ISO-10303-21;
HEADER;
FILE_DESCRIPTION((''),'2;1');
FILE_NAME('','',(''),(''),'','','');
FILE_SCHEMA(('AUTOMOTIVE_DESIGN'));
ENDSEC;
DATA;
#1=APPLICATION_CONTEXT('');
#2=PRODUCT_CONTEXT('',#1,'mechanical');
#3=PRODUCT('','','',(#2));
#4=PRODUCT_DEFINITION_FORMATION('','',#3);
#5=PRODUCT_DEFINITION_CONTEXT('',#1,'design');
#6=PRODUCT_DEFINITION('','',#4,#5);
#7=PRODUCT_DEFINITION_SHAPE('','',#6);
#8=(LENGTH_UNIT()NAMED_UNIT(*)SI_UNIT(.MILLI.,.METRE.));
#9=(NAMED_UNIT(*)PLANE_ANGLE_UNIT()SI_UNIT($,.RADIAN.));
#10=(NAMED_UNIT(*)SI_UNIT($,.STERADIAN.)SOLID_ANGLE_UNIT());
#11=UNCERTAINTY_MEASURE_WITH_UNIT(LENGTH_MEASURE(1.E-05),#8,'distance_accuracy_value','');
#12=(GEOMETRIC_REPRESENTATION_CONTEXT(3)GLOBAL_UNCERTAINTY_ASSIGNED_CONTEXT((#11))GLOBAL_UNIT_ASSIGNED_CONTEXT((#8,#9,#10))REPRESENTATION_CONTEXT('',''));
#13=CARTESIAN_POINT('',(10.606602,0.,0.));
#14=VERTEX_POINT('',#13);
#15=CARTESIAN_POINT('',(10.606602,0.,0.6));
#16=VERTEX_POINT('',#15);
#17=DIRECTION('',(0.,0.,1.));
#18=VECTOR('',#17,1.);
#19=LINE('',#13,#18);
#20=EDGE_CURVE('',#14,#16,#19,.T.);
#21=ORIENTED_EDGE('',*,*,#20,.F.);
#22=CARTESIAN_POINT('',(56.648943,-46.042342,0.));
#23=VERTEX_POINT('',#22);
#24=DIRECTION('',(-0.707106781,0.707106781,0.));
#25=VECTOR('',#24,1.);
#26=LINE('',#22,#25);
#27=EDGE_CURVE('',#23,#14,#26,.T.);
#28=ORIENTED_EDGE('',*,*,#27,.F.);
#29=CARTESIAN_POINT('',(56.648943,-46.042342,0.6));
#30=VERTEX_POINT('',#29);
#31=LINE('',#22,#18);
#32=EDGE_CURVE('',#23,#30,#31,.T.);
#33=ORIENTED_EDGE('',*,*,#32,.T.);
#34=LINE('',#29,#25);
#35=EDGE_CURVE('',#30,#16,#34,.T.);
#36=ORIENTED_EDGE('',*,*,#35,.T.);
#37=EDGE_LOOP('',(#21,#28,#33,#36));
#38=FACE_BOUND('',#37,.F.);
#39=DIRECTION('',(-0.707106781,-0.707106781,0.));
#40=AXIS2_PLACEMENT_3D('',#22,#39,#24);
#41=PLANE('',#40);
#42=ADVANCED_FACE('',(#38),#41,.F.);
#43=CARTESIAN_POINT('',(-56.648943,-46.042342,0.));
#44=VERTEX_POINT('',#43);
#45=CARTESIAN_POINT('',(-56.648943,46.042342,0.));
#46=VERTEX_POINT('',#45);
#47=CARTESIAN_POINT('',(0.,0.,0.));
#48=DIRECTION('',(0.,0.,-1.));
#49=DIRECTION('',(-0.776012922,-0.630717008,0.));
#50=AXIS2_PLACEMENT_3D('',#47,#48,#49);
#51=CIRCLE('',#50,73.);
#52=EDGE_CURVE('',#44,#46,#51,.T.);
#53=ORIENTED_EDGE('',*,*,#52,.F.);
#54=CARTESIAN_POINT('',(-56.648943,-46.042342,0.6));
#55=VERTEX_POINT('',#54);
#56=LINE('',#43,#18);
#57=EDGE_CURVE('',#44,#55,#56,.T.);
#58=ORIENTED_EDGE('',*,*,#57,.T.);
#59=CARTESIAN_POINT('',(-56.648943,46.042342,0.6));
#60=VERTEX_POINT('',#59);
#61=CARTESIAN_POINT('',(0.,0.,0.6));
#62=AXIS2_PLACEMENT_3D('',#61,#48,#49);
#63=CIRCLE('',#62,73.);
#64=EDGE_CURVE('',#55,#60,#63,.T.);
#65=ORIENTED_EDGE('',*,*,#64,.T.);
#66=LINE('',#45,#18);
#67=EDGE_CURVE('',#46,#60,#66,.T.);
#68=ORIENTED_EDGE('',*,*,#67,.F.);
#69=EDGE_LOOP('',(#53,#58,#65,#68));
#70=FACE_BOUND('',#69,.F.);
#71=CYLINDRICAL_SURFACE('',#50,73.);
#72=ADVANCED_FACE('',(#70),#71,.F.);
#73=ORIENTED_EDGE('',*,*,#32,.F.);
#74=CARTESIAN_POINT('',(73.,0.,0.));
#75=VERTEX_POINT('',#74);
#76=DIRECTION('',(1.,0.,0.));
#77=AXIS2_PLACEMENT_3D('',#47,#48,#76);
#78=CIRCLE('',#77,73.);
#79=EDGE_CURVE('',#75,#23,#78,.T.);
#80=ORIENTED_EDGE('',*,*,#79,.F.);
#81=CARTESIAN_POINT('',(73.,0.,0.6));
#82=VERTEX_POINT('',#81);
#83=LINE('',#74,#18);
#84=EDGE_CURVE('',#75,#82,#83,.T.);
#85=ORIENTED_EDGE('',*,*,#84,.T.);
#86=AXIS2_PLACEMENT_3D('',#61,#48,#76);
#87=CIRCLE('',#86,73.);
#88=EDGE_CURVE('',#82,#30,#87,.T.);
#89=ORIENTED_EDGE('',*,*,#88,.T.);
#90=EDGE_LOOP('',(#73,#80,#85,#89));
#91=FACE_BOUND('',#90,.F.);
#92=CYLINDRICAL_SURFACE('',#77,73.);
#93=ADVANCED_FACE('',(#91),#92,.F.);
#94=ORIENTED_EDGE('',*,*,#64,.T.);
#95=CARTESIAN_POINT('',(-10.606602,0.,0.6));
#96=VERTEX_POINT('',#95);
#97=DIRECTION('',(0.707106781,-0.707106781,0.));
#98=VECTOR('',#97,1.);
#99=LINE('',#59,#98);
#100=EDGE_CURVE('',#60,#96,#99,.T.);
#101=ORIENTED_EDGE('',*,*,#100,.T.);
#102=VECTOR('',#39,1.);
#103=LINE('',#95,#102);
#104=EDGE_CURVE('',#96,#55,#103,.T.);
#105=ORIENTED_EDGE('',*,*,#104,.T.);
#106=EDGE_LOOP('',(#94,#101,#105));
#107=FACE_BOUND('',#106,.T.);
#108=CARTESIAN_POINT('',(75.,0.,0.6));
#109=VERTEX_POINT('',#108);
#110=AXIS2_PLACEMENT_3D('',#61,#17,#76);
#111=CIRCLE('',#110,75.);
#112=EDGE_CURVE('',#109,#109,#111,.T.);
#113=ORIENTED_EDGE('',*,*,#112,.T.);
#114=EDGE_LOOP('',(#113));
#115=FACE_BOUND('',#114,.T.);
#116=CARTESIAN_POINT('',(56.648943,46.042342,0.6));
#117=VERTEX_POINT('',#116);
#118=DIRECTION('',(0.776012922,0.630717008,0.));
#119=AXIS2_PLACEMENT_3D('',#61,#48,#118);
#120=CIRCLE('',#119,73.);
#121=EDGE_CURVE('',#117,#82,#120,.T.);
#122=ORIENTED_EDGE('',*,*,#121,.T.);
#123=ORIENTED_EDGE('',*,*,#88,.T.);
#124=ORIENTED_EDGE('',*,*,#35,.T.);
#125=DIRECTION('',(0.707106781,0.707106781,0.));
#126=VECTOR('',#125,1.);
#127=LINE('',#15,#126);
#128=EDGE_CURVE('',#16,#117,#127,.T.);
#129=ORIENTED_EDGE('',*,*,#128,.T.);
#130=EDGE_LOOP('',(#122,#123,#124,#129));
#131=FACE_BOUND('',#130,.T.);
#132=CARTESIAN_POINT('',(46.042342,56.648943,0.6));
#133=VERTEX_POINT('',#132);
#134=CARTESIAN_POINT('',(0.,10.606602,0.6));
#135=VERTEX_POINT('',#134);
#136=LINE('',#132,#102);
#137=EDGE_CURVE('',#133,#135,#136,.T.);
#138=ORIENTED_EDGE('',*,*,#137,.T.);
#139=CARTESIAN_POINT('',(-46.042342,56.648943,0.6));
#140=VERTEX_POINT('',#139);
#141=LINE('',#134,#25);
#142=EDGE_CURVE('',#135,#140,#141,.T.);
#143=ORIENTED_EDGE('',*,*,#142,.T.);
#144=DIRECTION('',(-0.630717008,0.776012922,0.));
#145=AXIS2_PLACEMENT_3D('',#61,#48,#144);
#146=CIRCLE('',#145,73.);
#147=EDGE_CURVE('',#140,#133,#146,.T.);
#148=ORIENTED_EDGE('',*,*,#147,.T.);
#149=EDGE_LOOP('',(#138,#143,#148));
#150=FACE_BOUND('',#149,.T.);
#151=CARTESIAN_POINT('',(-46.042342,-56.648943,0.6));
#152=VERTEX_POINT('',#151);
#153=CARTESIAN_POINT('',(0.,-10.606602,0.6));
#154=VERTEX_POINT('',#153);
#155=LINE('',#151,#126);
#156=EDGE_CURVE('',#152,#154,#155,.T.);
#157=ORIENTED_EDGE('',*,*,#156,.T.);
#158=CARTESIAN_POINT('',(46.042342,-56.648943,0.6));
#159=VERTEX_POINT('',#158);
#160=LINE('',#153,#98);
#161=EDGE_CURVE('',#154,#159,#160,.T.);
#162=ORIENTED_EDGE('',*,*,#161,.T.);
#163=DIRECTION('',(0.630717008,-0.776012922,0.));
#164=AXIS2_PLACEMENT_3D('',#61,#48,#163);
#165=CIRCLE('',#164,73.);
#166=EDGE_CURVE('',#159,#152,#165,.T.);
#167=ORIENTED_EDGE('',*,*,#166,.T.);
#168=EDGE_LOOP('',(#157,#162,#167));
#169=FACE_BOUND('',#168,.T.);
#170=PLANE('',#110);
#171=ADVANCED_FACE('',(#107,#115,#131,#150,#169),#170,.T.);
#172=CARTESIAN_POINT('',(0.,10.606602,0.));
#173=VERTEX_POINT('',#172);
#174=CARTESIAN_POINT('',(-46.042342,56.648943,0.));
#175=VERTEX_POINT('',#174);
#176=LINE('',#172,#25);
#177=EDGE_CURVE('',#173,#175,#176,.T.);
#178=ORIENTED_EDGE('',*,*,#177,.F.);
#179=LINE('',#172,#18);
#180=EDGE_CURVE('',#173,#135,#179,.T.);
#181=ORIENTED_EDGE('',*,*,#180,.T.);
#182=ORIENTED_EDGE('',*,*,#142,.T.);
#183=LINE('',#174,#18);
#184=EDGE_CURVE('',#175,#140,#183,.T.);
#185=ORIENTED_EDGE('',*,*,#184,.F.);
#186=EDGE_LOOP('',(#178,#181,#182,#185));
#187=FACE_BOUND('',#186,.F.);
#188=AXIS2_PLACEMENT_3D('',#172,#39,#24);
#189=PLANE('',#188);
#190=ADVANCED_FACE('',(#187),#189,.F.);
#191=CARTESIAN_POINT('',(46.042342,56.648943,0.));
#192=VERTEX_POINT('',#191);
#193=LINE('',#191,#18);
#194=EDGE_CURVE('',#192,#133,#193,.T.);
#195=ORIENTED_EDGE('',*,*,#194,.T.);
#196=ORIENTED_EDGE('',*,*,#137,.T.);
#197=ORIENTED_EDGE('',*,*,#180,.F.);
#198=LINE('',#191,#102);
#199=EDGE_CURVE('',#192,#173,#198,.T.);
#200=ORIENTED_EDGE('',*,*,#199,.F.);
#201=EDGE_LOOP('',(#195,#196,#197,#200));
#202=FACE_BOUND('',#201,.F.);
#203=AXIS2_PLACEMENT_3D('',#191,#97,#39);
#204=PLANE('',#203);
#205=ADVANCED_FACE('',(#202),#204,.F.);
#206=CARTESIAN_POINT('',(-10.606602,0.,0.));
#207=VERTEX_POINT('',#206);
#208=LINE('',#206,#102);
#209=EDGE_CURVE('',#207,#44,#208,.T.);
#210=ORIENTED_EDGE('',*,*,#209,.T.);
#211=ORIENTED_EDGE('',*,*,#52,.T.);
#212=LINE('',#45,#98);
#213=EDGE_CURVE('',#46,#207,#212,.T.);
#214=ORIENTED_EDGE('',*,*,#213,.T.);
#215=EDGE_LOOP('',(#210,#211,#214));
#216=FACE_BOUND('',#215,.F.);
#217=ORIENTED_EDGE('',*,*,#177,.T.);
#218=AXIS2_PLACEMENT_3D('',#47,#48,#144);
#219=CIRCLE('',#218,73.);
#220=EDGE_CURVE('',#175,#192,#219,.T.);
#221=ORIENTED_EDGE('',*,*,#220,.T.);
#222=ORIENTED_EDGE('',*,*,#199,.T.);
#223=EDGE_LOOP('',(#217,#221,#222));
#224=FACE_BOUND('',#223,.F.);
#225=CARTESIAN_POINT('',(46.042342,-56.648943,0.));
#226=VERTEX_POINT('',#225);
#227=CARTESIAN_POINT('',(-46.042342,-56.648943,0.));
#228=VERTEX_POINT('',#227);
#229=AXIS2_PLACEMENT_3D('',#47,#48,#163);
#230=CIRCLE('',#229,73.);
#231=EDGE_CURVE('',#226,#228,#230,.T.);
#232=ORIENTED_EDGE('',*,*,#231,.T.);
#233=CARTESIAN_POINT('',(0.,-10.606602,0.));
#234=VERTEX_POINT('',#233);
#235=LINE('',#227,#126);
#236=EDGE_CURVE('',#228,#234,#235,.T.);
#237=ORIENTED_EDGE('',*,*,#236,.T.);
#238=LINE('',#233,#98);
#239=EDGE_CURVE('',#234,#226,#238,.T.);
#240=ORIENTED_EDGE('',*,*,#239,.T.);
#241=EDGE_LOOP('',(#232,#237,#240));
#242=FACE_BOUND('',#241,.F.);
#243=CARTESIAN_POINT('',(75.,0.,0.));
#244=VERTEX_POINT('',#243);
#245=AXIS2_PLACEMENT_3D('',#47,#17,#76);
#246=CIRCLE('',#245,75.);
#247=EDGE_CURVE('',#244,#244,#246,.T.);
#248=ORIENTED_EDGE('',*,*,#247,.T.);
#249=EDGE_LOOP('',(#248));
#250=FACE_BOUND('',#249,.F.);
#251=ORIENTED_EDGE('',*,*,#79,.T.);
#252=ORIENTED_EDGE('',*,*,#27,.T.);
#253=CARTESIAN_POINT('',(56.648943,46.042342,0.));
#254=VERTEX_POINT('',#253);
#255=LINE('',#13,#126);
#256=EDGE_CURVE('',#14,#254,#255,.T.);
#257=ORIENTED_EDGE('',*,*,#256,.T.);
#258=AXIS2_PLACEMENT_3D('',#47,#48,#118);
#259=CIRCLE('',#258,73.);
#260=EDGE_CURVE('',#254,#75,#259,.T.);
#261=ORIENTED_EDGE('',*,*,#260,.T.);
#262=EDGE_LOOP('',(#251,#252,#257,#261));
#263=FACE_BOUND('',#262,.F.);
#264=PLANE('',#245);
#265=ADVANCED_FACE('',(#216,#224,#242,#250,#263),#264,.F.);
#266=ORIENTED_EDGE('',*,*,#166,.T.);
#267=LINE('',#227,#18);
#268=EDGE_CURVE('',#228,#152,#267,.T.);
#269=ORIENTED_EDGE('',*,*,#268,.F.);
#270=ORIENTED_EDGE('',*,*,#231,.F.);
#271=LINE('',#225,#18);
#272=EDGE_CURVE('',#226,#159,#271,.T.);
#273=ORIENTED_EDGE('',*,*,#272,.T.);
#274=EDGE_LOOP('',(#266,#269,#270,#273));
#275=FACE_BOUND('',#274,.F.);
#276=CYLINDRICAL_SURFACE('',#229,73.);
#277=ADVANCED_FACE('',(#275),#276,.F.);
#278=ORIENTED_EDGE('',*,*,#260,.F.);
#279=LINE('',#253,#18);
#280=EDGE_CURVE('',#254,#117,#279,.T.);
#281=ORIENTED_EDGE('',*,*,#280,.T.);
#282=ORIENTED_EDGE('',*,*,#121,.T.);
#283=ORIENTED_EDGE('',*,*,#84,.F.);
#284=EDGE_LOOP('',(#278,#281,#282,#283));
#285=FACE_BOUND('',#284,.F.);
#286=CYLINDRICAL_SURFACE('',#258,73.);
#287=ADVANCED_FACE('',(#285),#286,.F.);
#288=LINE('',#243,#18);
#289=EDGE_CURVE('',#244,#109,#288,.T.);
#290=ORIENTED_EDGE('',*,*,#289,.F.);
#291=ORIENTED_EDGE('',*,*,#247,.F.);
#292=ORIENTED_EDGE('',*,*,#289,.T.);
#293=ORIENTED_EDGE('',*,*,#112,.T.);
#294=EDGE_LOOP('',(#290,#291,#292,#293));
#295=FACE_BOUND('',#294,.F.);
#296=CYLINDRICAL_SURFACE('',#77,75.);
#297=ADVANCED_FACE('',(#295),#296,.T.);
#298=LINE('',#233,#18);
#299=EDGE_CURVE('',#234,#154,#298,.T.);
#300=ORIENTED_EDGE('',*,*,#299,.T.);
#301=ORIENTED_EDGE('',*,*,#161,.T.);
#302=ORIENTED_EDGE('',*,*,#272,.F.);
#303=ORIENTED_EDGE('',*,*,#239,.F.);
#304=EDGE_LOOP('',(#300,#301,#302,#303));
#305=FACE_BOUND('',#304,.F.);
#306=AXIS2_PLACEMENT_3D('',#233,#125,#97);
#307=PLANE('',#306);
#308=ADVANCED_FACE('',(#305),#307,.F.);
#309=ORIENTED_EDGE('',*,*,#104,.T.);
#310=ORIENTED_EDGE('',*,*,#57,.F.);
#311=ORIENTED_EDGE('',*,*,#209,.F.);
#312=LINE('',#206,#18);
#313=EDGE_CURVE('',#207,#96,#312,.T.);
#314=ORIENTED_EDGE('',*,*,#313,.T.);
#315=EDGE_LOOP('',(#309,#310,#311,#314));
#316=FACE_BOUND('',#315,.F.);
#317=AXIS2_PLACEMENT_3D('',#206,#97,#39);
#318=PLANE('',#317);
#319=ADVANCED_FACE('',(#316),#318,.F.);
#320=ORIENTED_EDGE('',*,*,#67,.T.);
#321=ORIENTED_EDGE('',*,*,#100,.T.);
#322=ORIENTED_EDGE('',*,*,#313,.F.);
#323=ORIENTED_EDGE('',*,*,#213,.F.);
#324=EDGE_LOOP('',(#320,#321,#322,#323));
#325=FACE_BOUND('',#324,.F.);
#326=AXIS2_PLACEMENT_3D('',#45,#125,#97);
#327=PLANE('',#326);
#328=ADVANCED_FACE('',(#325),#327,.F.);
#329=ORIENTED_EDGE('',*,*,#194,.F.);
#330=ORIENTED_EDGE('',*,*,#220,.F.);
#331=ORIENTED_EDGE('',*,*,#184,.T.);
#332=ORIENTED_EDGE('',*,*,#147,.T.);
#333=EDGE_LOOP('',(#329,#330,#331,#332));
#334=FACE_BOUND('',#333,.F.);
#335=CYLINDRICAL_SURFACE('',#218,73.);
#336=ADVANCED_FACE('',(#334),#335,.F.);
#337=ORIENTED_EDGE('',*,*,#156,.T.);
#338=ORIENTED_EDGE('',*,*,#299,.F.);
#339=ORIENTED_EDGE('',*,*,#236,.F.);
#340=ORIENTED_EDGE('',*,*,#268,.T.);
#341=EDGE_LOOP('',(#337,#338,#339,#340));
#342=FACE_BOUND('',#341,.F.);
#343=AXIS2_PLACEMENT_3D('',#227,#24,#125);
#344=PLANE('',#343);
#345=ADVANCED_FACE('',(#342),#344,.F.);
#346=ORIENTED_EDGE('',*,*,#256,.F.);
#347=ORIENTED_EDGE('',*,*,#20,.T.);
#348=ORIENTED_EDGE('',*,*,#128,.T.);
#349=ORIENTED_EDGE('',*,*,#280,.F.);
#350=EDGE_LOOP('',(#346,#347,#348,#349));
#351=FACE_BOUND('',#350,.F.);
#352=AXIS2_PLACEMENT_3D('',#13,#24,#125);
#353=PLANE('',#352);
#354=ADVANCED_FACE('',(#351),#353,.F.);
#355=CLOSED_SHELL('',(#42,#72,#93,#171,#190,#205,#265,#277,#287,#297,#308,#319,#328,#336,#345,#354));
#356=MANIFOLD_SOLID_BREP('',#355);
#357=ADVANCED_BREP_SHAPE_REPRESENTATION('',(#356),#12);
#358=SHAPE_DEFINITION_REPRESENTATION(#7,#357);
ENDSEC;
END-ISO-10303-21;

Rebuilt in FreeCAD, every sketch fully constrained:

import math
import FreeCAD as App
import Part
import Sketcher
from FreeCAD import Vector
Q = App.Units.Quantity

doc = App.newDocument("Part")
body = doc.addObject("PartDesign::Body", "Body")

# Sketch on XY plane
sketch1 = doc.addObject("Sketcher::SketchObject", "Sketch")
body.addObject(sketch1)
sketch1.AttachmentSupport = (doc.XY_Plane, [""])
sketch1.MapMode = "FlatFace"
sketch1.addGeometry(Part.Circle(Vector(0, 0, 0), Vector(0, 0, 1), 75), False)
sketch1.addGeometry(Part.LineSegment(Vector(-46.042342, -56.648943, 0), Vector(0, -10.606602, 0)), False)
sketch1.addGeometry(Part.LineSegment(Vector(0, -10.606602, 0), Vector(46.042342, -56.648943, 0)), False)
sketch1.addGeometry(Part.ArcOfCircle(Part.Circle(Vector(0, 0, 0), Vector(0, 0, 1), 73), math.radians(-129.103042), math.radians(-50.896958)), False)
sketch1.addGeometry(Part.LineSegment(Vector(-56.648943, 46.042342, 0), Vector(-10.606602, 0, 0)), False)
sketch1.addGeometry(Part.LineSegment(Vector(-10.606602, 0, 0), Vector(-56.648943, -46.042342, 0)), False)
sketch1.addGeometry(Part.ArcOfCircle(Part.Circle(Vector(0, 0, 0), Vector(0, 0, 1), 73), math.radians(140.896958), math.radians(219.103042)), False)
sketch1.addGeometry(Part.LineSegment(Vector(56.648943, -46.042342, 0), Vector(10.606602, 0, 0)), False)
sketch1.addGeometry(Part.LineSegment(Vector(10.606602, 0, 0), Vector(56.648943, 46.042342, 0)), False)
sketch1.addGeometry(Part.ArcOfCircle(Part.Circle(Vector(0, 0, 0), Vector(0, 0, 1), 73), math.radians(0), math.radians(39.103042)), False)
sketch1.addGeometry(Part.ArcOfCircle(Part.Circle(Vector(0, 0, 0), Vector(0, 0, 1), 73), math.radians(-39.103042), math.radians(0)), False)
sketch1.addGeometry(Part.LineSegment(Vector(46.042342, 56.648943, 0), Vector(0, 10.606602, 0)), False)
sketch1.addGeometry(Part.LineSegment(Vector(0, 10.606602, 0), Vector(-46.042342, 56.648943, 0)), False)
sketch1.addGeometry(Part.ArcOfCircle(Part.Circle(Vector(0, 0, 0), Vector(0, 0, 1), 73), math.radians(50.896958), math.radians(129.103042)), False)
sketch1.addConstraint(Sketcher.Constraint("Coincident", 1, 2, 2, 1))
sketch1.addConstraint(Sketcher.Constraint("Coincident", 2, 2, 3, 2))
sketch1.addConstraint(Sketcher.Constraint("Coincident", 3, 1, 1, 1))
sketch1.addConstraint(Sketcher.Constraint("Coincident", 4, 2, 5, 1))
sketch1.addConstraint(Sketcher.Constraint("Coincident", 5, 2, 6, 2))
sketch1.addConstraint(Sketcher.Constraint("Coincident", 6, 1, 4, 1))
sketch1.addConstraint(Sketcher.Constraint("Coincident", 7, 2, 8, 1))
sketch1.addConstraint(Sketcher.Constraint("Coincident", 8, 2, 9, 2))
sketch1.addConstraint(Sketcher.Constraint("Tangent", 9, 1, 10, 2))
sketch1.addConstraint(Sketcher.Constraint("Coincident", 10, 1, 7, 1))
sketch1.addConstraint(Sketcher.Constraint("Coincident", 11, 2, 12, 1))
sketch1.addConstraint(Sketcher.Constraint("Coincident", 12, 2, 13, 2))
sketch1.addConstraint(Sketcher.Constraint("Coincident", 13, 1, 11, 1))
sketch1.addConstraint(Sketcher.Constraint("Coincident", 0, 3, -1, 1))
sketch1.addConstraint(Sketcher.Constraint("Coincident", 3, 3, -1, 1))
sketch1.addConstraint(Sketcher.Constraint("Coincident", 6, 3, -1, 1))
sketch1.addConstraint(Sketcher.Constraint("Coincident", 9, 3, -1, 1))
sketch1.addConstraint(Sketcher.Constraint("Coincident", 13, 3, -1, 1))
sketch1.addConstraint(Sketcher.Constraint("Equal", 3, 6))
sketch1.addConstraint(Sketcher.Constraint("Equal", 6, 9))
sketch1.addConstraint(Sketcher.Constraint("Equal", 9, 10))
sketch1.addConstraint(Sketcher.Constraint("Equal", 10, 13))
sketch1.addConstraint(Sketcher.Constraint("Symmetric", 4, 2, 7, 2, -1, 1))
sketch1.addConstraint(Sketcher.Constraint("Symmetric", 1, 2, 11, 2, -1, 1))
sketch1.addConstraint(Sketcher.Constraint("PointOnObject", 1, 2, -2))
sketch1.addConstraint(Sketcher.Constraint("PointOnObject", 4, 2, -1))
sketch1.addConstraint(Sketcher.Constraint("PointOnObject", 9, 1, -1))
sketch1.addConstraint(Sketcher.Constraint("Perpendicular", 1, 2))
sketch1.addConstraint(Sketcher.Constraint("Parallel", 2, 4))
sketch1.addConstraint(Sketcher.Constraint("Perpendicular", 4, 5))
sketch1.addConstraint(Sketcher.Constraint("Perpendicular", 5, 7))
sketch1.addConstraint(Sketcher.Constraint("Perpendicular", 7, 8))
sketch1.addConstraint(Sketcher.Constraint("Parallel", 8, 11))
sketch1.addConstraint(Sketcher.Constraint("Perpendicular", 11, 12))
sketch1.addConstraint(Sketcher.Constraint("Horizontal", 2, 2, 3, 1))
sketch1.addConstraint(Sketcher.Constraint("Equal", 2, 4))
sketch1.addConstraint(Sketcher.Constraint("Diameter", 0, Q("150 mm")))
sketch1.addConstraint(Sketcher.Constraint("Radius", 3, Q("73 mm")))
sketch1.addConstraint(Sketcher.Constraint("DistanceY", 1, 2, -1, 1, Q("10.606602 mm")))
pad1 = doc.addObject("PartDesign::Pad", "Pad")
body.addObject(pad1)
pad1.Profile = sketch1
pad1.Length = 0.6

doc.recompute()
